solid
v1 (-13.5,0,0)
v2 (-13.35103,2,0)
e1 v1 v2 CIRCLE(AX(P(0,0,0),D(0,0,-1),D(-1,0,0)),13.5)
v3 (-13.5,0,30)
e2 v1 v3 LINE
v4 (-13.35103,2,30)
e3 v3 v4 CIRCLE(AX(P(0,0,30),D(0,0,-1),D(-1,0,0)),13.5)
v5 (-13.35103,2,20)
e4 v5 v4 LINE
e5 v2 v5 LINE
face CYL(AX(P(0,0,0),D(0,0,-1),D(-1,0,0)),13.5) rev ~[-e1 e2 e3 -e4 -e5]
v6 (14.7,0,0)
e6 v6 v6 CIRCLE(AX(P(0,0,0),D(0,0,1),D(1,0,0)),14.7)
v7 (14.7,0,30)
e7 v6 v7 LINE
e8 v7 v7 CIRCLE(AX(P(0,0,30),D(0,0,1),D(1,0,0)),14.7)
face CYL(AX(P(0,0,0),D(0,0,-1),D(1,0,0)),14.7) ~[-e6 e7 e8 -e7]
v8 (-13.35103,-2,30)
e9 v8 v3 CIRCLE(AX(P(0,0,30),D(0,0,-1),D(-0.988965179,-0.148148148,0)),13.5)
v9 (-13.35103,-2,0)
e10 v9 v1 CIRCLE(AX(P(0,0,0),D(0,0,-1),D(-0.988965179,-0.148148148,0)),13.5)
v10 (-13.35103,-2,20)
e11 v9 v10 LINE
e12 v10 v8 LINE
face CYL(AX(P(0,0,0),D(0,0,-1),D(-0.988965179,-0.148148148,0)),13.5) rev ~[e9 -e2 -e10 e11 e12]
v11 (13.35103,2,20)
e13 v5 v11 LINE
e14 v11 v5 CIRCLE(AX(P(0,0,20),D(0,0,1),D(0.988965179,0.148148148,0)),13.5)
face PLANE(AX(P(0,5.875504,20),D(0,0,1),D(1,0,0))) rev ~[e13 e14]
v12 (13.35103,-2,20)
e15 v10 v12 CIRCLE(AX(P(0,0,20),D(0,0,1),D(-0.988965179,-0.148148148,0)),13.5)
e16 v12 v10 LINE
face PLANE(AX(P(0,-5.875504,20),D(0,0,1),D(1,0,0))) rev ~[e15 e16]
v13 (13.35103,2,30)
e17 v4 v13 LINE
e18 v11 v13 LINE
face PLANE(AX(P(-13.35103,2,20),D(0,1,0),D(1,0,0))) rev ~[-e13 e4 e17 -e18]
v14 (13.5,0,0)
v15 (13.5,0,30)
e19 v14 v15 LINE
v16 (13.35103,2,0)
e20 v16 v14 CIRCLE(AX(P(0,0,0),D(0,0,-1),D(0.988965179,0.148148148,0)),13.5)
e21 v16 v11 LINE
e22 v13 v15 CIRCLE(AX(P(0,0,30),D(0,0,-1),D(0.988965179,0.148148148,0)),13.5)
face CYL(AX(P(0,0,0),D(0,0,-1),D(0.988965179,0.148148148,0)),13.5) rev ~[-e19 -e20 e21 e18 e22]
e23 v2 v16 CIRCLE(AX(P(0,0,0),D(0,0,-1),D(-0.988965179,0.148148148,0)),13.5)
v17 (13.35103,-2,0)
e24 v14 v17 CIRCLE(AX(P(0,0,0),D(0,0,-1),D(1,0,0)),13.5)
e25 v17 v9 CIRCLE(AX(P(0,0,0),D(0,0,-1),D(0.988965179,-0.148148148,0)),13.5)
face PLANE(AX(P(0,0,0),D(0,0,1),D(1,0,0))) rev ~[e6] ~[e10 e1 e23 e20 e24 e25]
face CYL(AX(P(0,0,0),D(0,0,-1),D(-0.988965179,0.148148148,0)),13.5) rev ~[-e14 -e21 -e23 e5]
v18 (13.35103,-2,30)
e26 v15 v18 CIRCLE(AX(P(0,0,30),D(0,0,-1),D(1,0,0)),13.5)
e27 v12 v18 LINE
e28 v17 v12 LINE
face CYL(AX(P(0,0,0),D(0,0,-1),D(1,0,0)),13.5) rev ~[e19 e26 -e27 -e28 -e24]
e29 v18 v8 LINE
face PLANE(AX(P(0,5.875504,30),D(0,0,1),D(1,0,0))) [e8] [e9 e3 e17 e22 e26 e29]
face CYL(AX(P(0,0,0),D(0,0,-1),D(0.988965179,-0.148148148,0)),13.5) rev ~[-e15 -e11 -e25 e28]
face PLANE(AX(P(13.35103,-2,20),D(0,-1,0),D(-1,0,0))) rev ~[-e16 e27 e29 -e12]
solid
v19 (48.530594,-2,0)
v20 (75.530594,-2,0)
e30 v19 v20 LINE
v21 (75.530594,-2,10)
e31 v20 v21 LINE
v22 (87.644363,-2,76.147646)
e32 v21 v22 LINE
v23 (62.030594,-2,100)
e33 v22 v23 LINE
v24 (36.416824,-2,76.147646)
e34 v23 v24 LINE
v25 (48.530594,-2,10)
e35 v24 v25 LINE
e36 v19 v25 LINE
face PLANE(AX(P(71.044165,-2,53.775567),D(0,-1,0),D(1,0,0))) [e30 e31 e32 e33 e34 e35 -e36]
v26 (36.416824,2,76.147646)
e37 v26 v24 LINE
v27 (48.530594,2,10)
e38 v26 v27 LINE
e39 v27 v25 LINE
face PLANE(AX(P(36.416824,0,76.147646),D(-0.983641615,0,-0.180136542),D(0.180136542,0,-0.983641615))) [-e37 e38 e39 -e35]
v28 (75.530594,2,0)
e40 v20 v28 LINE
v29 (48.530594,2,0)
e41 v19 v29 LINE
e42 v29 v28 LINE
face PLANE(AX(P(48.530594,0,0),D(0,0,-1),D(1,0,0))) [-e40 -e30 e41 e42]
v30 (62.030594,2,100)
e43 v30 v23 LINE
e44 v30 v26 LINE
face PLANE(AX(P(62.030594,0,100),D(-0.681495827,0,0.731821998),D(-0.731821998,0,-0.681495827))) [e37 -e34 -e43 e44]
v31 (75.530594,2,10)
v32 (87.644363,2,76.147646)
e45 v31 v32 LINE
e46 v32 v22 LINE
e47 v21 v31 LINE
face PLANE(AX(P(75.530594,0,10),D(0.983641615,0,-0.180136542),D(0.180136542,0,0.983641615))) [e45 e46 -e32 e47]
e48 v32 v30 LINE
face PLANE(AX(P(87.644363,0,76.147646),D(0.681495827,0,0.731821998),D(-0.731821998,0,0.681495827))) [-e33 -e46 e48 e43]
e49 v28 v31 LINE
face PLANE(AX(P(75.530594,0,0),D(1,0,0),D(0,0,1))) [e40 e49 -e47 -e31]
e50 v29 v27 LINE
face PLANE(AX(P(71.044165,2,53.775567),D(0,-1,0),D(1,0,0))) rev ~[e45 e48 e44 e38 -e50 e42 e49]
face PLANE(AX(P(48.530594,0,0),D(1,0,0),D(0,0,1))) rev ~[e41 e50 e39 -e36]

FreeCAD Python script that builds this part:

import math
import FreeCAD as App
import Part
import Sketcher

V = App.Vector

doc = App.newDocument("Part")
body = doc.addObject("PartDesign::Body", "Body")

# Sketch on XY plane
sketch1 = body.newObject("Sketcher::SketchObject", "Sketch")
sketch1.AttachmentSupport = (doc.getObject("XY_Plane"), [""])
sketch1.MapMode = "FlatFace"
sketch1.addGeometry(Part.Circle(V(0, 0, 0), V(0, 0, 1), 14.7), False)
sketch1.addGeometry(Part.ArcOfCircle(Part.Circle(V(0, 0, 0), V(0, 0, 1), 13.5), math.radians(9), math.radians(171)), False)
sketch1.addGeometry(Part.ArcOfCircle(Part.Circle(V(0, 0, 0), V(0, 0, 1), 13.5), math.radians(0), math.radians(8.52)), False)
sketch1.addGeometry(Part.ArcOfCircle(Part.Circle(V(0, 0, 0), V(0, 0, 1), 13.5), math.radians(-8.52), math.radians(0)), False)
sketch1.addGeometry(Part.ArcOfCircle(Part.Circle(V(0, 0, 0), V(0, 0, 1), 13.5), math.radians(-171), math.radians(-9)), False)
sketch1.addGeometry(Part.ArcOfCircle(Part.Circle(V(0, 0, 0), V(0, 0, 1), 13.5), math.radians(-180), math.radians(-171.48)), False)
sketch1.addGeometry(Part.ArcOfCircle(Part.Circle(V(0, 0, 0), V(0, 0, 1), 13.5), math.radians(171.48), math.radians(180)), False)
sketch1.addConstraint(Sketcher.Constraint("Tangent", 1, 1, 2, 2))
sketch1.addConstraint(Sketcher.Constraint("Tangent", 2, 1, 3, 2))
sketch1.addConstraint(Sketcher.Constraint("Tangent", 3, 1, 4, 2))
sketch1.addConstraint(Sketcher.Constraint("Tangent", 4, 1, 5, 2))
sketch1.addConstraint(Sketcher.Constraint("Tangent", 5, 1, 6, 2))
sketch1.addConstraint(Sketcher.Constraint("Tangent", 6, 1, 1, 2))
sketch1.addConstraint(Sketcher.Constraint("Coincident", 0, 3, -1, 1))
sketch1.addConstraint(Sketcher.Constraint("Coincident", 1, 3, -1, 1))
sketch1.addConstraint(Sketcher.Constraint("Coincident", 3, 3, -1, 1))
sketch1.addConstraint(Sketcher.Constraint("Equal", 3, 4))
sketch1.addConstraint(Sketcher.Constraint("PointOnObject", 2, 1, -1))
sketch1.addConstraint(Sketcher.Constraint("PointOnObject", 5, 1, -1))
sketch1.addConstraint(Sketcher.Constraint("Horizontal", 3, 1, 4, 1))
sketch1.addConstraint(Sketcher.Constraint("Horizontal", 1, 1, 6, 1))
sketch1.addConstraint(Sketcher.Constraint("Vertical", 1, 1, 3, 1))
sketch1.addConstraint(Sketcher.Constraint("Diameter", 0, 29.4))
sketch1.addConstraint(Sketcher.Constraint("Radius", 1, 13.5))
sketch1.addConstraint(Sketcher.Constraint("DistanceY", -1, 1, 1, 1, 2.0))
pad1 = body.newObject("PartDesign::Pad", "Pad")
pad1.Profile = sketch1
pad1.Length = 30

# Sketch on XY plane
sketch2 = body.newObject("Sketcher::SketchObject", "Sketch001")
sketch2.AttachmentSupport = (doc.getObject("XY_Plane"), [""])
sketch2.MapMode = "FlatFace"
sketch2.AttachmentOffset = App.Placement(V(0, 0, 20), App.Rotation())
sketch2.addGeometry(Part.LineSegment(V(-13, 2, 0), V(13, 2, 0)), False)
sketch2.addGeometry(Part.ArcOfCircle(Part.Circle(V(0, 0, 0), V(0, 0, 1), 14), math.radians(9), math.radians(171)), False)
sketch2.addGeometry(Part.ArcOfCircle(Part.Circle(V(0, 0, 0), V(0, 0, 1), 14), math.radians(-171), math.radians(-9)), False)
sketch2.addGeometry(Part.LineSegment(V(13, -2, 0), V(-13, -2, 0)), False)
sketch2.addConstraint(Sketcher.Constraint("Coincident", 0, 1, 1, 2))
sketch2.addConstraint(Sketcher.Constraint("Coincident", 1, 1, 0, 2))
sketch2.addConstraint(Sketcher.Constraint("Coincident", 2, 1, 3, 2))
sketch2.addConstraint(Sketcher.Constraint("Coincident", 3, 1, 2, 2))
sketch2.addConstraint(Sketcher.Constraint("Horizontal", 0))
sketch2.addConstraint(Sketcher.Constraint("Horizontal", 3))
sketch2.addConstraint(Sketcher.Constraint("Coincident", 1, 3, -1, 1))
sketch2.addConstraint(Sketcher.Constraint("Coincident", 2, 3, -1, 1))
sketch2.addConstraint(Sketcher.Constraint("Equal", 1, 2))
sketch2.addConstraint(Sketcher.Constraint("Vertical", 0, 1, 2, 1))
sketch2.addConstraint(Sketcher.Constraint("Radius", 1, 13.5))
sketch2.addConstraint(Sketcher.Constraint("DistanceY", -1, 1, 0, 1, 2.0))
pad2 = body.newObject("PartDesign::Pad", "Pad001")
pad2.Profile = sketch2
pad2.Length = 10
body2 = doc.addObject("PartDesign::Body", "Body001")

# Sketch on XZ plane
sketch3 = body2.newObject("Sketcher::SketchObject", "Sketch002")
sketch3.AttachmentSupport = (doc.getObject("XZ_Plane001"), [""])
sketch3.MapMode = "FlatFace"
sketch3.addGeometry(Part.LineSegment(V(76, 10, 0), V(88, 76, 0)), False)
sketch3.addGeometry(Part.LineSegment(V(88, 76, 0), V(62, 100, 0)), False)
sketch3.addGeometry(Part.LineSegment(V(62, 100, 0), V(36, 76, 0)), False)
sketch3.addGeometry(Part.LineSegment(V(36, 76, 0), V(49, 10, 0)), False)
sketch3.addGeometry(Part.LineSegment(V(49, 10, 0), V(49, 0, 0)), False)
sketch3.addGeometry(Part.LineSegment(V(49, 0, 0), V(76, 0, 0)), False)
sketch3.addGeometry(Part.LineSegment(V(76, 0, 0), V(76, 10, 0)), False)
sketch3.addConstraint(Sketcher.Constraint("Coincident", 0, 2, 1, 1))
sketch3.addConstraint(Sketcher.Constraint("Coincident", 1, 2, 2, 1))
sketch3.addConstraint(Sketcher.Constraint("Coincident", 2, 2, 3, 1))
sketch3.addConstraint(Sketcher.Constraint("Coincident", 3, 2, 4, 1))
sketch3.addConstraint(Sketcher.Constraint("Coincident", 4, 2, 5, 1))
sketch3.addConstraint(Sketcher.Constraint("Coincident", 5, 2, 6, 1))
sketch3.addConstraint(Sketcher.Constraint("Coincident", 6, 2, 0, 1))
sketch3.addConstraint(Sketcher.Constraint("Vertical", 4))
sketch3.addConstraint(Sketcher.Constraint("Horizontal", 5))
sketch3.addConstraint(Sketcher.Constraint("Vertical", 6))
sketch3.addConstraint(Sketcher.Constraint("PointOnObject", 4, 2, -1))
sketch3.addConstraint(Sketcher.Constraint("Horizontal", 0, 2, 2, 2))
sketch3.addConstraint(Sketcher.Constraint("Horizontal", 3, 2, 6, 2))
sketch3.addConstraint(Sketcher.Constraint("Equal", 1, 2))
sketch3.addConstraint(Sketcher.Constraint("Equal", 0, 3))
sketch3.addConstraint(Sketcher.Constraint("DistanceX", 5, 1, 5, 2, 27.0))
sketch3.addConstraint(Sketcher.Constraint("DistanceY", 4, 2, 4, 1, 10.0))
sketch3.addConstraint(Sketcher.Constraint("Distance", 1, 35.0))
sketch3.addConstraint(Sketcher.Constraint("DistanceY", -1, 1, 1, 2, 100.0))
sketch3.addConstraint(Sketcher.Constraint("Distance", 0, 67.24771))
sketch3.addConstraint(Sketcher.Constraint("DistanceX", -1, 1, 0, 2, 87.644363))
pad3 = body2.newObject("PartDesign::Pad", "Pad002")
pad3.Profile = sketch3
pad3.Type = "TwoLengths"
pad3.Length = 2
pad3.Length2 = 2

doc.recompute()
